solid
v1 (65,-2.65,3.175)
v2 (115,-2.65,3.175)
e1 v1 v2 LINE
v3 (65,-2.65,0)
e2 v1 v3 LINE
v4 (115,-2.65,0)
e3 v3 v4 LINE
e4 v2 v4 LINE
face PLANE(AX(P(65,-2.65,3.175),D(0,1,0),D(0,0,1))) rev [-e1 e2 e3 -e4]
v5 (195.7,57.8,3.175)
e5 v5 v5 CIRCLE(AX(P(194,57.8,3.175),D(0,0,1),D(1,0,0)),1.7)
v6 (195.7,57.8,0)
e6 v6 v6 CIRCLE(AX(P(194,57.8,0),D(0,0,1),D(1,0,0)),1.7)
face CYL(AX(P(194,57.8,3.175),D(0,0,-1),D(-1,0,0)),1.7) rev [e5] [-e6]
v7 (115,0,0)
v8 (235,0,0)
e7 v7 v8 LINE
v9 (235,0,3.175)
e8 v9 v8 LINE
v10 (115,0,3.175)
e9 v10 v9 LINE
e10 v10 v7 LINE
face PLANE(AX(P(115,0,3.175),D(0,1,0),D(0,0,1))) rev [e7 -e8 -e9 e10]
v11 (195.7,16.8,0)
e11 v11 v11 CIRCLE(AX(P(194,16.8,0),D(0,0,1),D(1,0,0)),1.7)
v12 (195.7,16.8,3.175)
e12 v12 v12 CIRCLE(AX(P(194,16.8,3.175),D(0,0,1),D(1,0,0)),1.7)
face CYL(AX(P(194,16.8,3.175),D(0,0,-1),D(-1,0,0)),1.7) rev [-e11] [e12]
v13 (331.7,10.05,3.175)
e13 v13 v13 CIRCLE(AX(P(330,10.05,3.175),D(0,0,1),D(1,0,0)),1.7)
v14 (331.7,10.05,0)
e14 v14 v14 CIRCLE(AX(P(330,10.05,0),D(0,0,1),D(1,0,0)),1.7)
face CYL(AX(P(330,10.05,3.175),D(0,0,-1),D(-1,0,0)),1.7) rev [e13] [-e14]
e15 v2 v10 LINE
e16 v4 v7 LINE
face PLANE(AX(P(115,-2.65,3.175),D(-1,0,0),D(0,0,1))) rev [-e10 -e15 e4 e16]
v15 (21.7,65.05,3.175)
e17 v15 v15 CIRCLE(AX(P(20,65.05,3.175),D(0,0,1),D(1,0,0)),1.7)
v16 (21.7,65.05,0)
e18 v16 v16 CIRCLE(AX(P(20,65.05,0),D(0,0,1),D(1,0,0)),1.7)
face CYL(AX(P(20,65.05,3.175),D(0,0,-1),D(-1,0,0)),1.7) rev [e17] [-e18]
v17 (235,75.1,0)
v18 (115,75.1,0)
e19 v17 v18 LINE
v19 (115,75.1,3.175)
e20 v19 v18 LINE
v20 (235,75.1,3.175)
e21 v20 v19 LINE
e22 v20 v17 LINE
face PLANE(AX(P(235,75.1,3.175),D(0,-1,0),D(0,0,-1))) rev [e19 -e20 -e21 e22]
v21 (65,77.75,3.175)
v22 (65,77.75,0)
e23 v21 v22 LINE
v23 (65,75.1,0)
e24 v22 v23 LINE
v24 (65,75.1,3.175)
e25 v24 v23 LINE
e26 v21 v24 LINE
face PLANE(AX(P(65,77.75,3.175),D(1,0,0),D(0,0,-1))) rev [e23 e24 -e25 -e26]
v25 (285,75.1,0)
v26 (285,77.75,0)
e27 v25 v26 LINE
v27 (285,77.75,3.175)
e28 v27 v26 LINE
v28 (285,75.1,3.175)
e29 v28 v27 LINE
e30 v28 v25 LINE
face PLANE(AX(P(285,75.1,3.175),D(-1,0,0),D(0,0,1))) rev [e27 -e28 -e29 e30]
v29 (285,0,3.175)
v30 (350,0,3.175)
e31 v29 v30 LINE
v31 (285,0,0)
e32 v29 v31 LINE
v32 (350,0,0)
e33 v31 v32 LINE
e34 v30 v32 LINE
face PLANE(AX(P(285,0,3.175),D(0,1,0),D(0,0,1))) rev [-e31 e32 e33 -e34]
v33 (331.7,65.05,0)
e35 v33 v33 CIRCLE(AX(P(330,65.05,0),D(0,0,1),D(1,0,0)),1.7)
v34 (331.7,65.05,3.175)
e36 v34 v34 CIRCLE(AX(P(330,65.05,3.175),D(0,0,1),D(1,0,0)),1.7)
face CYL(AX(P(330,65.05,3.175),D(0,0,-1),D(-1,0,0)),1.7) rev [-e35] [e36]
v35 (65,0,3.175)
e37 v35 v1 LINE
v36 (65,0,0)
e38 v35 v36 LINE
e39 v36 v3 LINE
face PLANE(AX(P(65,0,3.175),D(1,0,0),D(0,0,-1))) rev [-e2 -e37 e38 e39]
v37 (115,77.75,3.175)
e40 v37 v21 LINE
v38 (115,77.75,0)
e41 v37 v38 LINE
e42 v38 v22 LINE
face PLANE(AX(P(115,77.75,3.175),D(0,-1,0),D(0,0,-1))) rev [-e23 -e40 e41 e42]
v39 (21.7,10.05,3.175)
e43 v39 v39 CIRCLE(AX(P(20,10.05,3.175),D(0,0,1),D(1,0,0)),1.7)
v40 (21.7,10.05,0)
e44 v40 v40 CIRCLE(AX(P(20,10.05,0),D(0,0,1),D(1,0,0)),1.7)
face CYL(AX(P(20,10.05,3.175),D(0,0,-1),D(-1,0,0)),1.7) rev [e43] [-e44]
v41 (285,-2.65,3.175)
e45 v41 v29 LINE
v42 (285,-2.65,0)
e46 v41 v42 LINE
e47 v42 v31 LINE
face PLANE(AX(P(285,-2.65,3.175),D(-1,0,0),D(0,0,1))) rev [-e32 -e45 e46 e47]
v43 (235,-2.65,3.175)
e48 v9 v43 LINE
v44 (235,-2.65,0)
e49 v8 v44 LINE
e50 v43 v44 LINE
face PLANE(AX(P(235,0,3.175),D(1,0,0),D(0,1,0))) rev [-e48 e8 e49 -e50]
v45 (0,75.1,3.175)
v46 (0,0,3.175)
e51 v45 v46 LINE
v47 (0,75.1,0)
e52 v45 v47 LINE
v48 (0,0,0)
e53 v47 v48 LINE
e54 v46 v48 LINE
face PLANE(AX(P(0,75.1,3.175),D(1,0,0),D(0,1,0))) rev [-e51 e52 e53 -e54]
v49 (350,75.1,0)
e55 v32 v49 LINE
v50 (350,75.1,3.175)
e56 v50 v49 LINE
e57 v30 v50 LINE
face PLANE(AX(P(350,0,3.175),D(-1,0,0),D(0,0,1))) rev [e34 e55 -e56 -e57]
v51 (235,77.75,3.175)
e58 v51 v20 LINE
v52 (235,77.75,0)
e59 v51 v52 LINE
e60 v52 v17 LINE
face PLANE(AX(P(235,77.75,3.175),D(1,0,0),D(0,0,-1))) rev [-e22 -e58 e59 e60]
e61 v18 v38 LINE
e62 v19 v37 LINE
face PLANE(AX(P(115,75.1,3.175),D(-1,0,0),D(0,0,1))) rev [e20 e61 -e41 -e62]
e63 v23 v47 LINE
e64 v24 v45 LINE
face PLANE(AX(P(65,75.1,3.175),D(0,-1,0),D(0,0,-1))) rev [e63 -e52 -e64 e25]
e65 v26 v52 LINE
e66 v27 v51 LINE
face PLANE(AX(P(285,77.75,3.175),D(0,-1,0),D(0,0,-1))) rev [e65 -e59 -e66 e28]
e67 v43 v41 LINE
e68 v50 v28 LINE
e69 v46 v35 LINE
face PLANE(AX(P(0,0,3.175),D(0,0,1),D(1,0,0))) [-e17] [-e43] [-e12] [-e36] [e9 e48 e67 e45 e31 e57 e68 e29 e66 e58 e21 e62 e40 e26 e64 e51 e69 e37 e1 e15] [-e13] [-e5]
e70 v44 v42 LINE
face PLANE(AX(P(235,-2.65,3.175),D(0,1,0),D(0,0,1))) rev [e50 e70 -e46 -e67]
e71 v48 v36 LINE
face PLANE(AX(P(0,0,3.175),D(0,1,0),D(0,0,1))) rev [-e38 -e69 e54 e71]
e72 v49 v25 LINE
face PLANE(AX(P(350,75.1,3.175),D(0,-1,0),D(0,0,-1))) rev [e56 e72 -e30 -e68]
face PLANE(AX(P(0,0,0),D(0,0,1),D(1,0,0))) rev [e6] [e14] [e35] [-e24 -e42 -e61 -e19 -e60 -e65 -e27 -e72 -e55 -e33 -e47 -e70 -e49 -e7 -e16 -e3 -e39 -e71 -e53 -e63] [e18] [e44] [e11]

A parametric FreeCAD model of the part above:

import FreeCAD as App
import Part
import Sketcher

V = App.Vector
Q = App.Units.Quantity

doc = App.newDocument("Part")
params = doc.addObject("Spreadsheet::Sheet", "Params")
for row, (alias, value) in enumerate([
    ("sketch1_diameter", "3.4 mm"),
    ("sketch1_width", "65 mm"),
    ("sketch1_width2", "50 mm"),
    ("sketch1_width3", "120 mm"),
    ("sketch1_height", "75.1 mm"),
    ("pad1_length", "3.175 mm"),
], start=1):
    params.set(f"A{row}", alias)
    params.set(f"B{row}", "=" + value)
    params.setAlias(f"B{row}", alias)

body = doc.addObject("PartDesign::Body", "Body")

# Sketch on XY plane
sketch1 = body.newObject("Sketcher::SketchObject", "Sketch")
sketch1.AttachmentSupport = (doc.getObject("XY_Plane"), [""])
sketch1.MapMode = "FlatFace"
sketch1.addGeometry([
    Part.LineSegment(V(0, 0, 0), V(65, 0, 0)),  # 0
    Part.LineSegment(V(65, 0, 0), V(65, -2.65, 0)),  # 1
    Part.LineSegment(V(65, -2.65, 0), V(115, -2.65, 0)),  # 2
    Part.LineSegment(V(115, -2.65, 0), V(115, 0, 0)),  # 3
    Part.LineSegment(V(115, 0, 0), V(235, 0, 0)),  # 4
    Part.LineSegment(V(235, 0, 0), V(235, -2.65, 0)),  # 5
    Part.LineSegment(V(235, -2.65, 0), V(285, -2.65, 0)),  # 6
    Part.LineSegment(V(285, -2.65, 0), V(285, 0, 0)),  # 7
    Part.LineSegment(V(285, 0, 0), V(350, 0, 0)),  # 8
    Part.LineSegment(V(350, 0, 0), V(350, 75.1, 0)),  # 9
    Part.LineSegment(V(350, 75.1, 0), V(285, 75.1, 0)),  # 10
    Part.LineSegment(V(285, 75.1, 0), V(285, 77.75, 0)),  # 11
    Part.LineSegment(V(285, 77.75, 0), V(235, 77.75, 0)),  # 12
    Part.LineSegment(V(235, 77.75, 0), V(235, 75.1, 0)),  # 13
    Part.LineSegment(V(235, 75.1, 0), V(115, 75.1, 0)),  # 14
    Part.LineSegment(V(115, 75.1, 0), V(115, 77.75, 0)),  # 15
    Part.LineSegment(V(115, 77.75, 0), V(65, 77.75, 0)),  # 16
    Part.LineSegment(V(65, 77.75, 0), V(65, 75.1, 0)),  # 17
    Part.LineSegment(V(65, 75.1, 0), V(0, 75.1, 0)),  # 18
    Part.LineSegment(V(0, 75.1, 0), V(0, 0, 0)),  # 19
    Part.Circle(V(20, 10.05, 0), V(0, 0, 1), 1.7),  # 20
    Part.Circle(V(194, 16.8, 0), V(0, 0, 1), 1.7),  # 21
    Part.Circle(V(330, 10.05, 0), V(0, 0, 1), 1.7),  # 22
    Part.Circle(V(20, 65.05, 0), V(0, 0, 1), 1.7),  # 23
    Part.Circle(V(194, 57.8, 0), V(0, 0, 1), 1.7),  # 24
    Part.Circle(V(330, 65.05, 0), V(0, 0, 1), 1.7),  # 25
], False)
sketch1.addConstraint([
    Sketcher.Constraint("Coincident", 0, 2, 1, 1),
    Sketcher.Constraint("Coincident", 1, 2, 2, 1),
    Sketcher.Constraint("Coincident", 2, 2, 3, 1),
    Sketcher.Constraint("Coincident", 3, 2, 4, 1),
    Sketcher.Constraint("Coincident", 4, 2, 5, 1),
    Sketcher.Constraint("Coincident", 5, 2, 6, 1),
    Sketcher.Constraint("Coincident", 6, 2, 7, 1),
    Sketcher.Constraint("Coincident", 7, 2, 8, 1),
    Sketcher.Constraint("Coincident", 8, 2, 9, 1),
    Sketcher.Constraint("Coincident", 9, 2, 10, 1),
    Sketcher.Constraint("Coincident", 10, 2, 11, 1),
    Sketcher.Constraint("Coincident", 11, 2, 12, 1),
    Sketcher.Constraint("Coincident", 12, 2, 13, 1),
    Sketcher.Constraint("Coincident", 13, 2, 14, 1),
    Sketcher.Constraint("Coincident", 14, 2, 15, 1),
    Sketcher.Constraint("Coincident", 15, 2, 16, 1),
    Sketcher.Constraint("Coincident", 16, 2, 17, 1),
    Sketcher.Constraint("Coincident", 17, 2, 18, 1),
    Sketcher.Constraint("Coincident", 18, 2, 19, 1),
    Sketcher.Constraint("Coincident", 19, 2, 0, 1),
    Sketcher.Constraint("Horizontal", 0),
    Sketcher.Constraint("Vertical", 1),
    Sketcher.Constraint("Horizontal", 2),
    Sketcher.Constraint("Vertical", 3),
    Sketcher.Constraint("Horizontal", 4),
    Sketcher.Constraint("Vertical", 5),
    Sketcher.Constraint("Horizontal", 6),
    Sketcher.Constraint("Vertical", 7),
    Sketcher.Constraint("Horizontal", 8),
    Sketcher.Constraint("Vertical", 9),
    Sketcher.Constraint("Horizontal", 10),
    Sketcher.Constraint("Vertical", 11),
    Sketcher.Constraint("Horizontal", 12),
    Sketcher.Constraint("Vertical", 13),
    Sketcher.Constraint("Horizontal", 14),
    Sketcher.Constraint("Vertical", 15),
    Sketcher.Constraint("Horizontal", 16),
    Sketcher.Constraint("Vertical", 17),
    Sketcher.Constraint("Horizontal", 18),
    Sketcher.Constraint("Vertical", 19),
    Sketcher.Constraint("Coincident", 19, 2, -1, 1),
    Sketcher.Constraint("Equal", 20, 21),
    Sketcher.Constraint("Equal", 21, 22),
    Sketcher.Constraint("Equal", 22, 23),
    Sketcher.Constraint("Equal", 23, 24),
    Sketcher.Constraint("Equal", 24, 25),
    Sketcher.Constraint("PointOnObject", 3, 2, -1),
    Sketcher.Constraint("PointOnObject", 7, 2, -1),
    Sketcher.Constraint("Horizontal", 20, 3, 22, 3),
    Sketcher.Constraint("Horizontal", 23, 3, 25, 3),
    Sketcher.Constraint("Horizontal", 2, 2, 5, 2),
    Sketcher.Constraint("Horizontal", 10, 2, 13, 2),
    Sketcher.Constraint("Horizontal", 12, 2, 15, 2),
    Sketcher.Constraint("Horizontal", 14, 2, 17, 2),
    Sketcher.Constraint("Vertical", 20, 3, 23, 3),
    Sketcher.Constraint("Vertical", 21, 3, 24, 3),
    Sketcher.Constraint("Vertical", 22, 3, 25, 3),
    Sketcher.Constraint("Vertical", 7, 2, 10, 2),
    Sketcher.Constraint("Vertical", 5, 2, 12, 2),
    Sketcher.Constraint("Vertical", 3, 2, 14, 2),
    Sketcher.Constraint("Vertical", 1, 2, 16, 2),
    Sketcher.Constraint("Equal", 2, 6),
    Sketcher.Constraint("Equal", 0, 8),
    Sketcher.Constraint("Equal", 7, 11),
    Sketcher.Constraint("Diameter", 20, Q("3.4 mm")),
    Sketcher.Constraint("DistanceX", 0, 1, 0, 2, Q("65 mm")),
    Sketcher.Constraint("DistanceX", 2, 1, 2, 2, Q("50 mm")),
    Sketcher.Constraint("DistanceX", 4, 1, 4, 2, Q("120 mm")),
    Sketcher.Constraint("DistanceY", 9, 1, 9, 2, Q("75.1 mm")),
    Sketcher.Constraint("DistanceX", -1, 1, 20, 3, Q("20 mm")),
    Sketcher.Constraint("DistanceX", -1, 1, 21, 3, Q("194 mm")),
    Sketcher.Constraint("DistanceX", -1, 1, 22, 3, Q("330 mm")),
    Sketcher.Constraint("DistanceY", 20, 3, 23, 3, Q("55 mm")),
    Sketcher.Constraint("DistanceY", 21, 3, 24, 3, Q("41 mm")),
    Sketcher.Constraint("DistanceY", 1, 2, 1, 1, Q("2.65 mm")),
    Sketcher.Constraint("DistanceY", -1, 1, 21, 3, Q("16.8 mm")),
    Sketcher.Constraint("DistanceY", 1, 2, 20, 3, Q("12.7 mm")),
])
sketch1.setExpression("Constraints[64]", "Params.sketch1_diameter")
sketch1.setExpression("Constraints[65]", "Params.sketch1_width")
sketch1.setExpression("Constraints[66]", "Params.sketch1_width2")
sketch1.setExpression("Constraints[67]", "Params.sketch1_width3")
sketch1.setExpression("Constraints[68]", "Params.sketch1_height")
pad1 = body.newObject("PartDesign::Pad", "Pad")
pad1.Profile = sketch1
pad1.setExpression("Length", "Params.pad1_length")

doc.recompute()
